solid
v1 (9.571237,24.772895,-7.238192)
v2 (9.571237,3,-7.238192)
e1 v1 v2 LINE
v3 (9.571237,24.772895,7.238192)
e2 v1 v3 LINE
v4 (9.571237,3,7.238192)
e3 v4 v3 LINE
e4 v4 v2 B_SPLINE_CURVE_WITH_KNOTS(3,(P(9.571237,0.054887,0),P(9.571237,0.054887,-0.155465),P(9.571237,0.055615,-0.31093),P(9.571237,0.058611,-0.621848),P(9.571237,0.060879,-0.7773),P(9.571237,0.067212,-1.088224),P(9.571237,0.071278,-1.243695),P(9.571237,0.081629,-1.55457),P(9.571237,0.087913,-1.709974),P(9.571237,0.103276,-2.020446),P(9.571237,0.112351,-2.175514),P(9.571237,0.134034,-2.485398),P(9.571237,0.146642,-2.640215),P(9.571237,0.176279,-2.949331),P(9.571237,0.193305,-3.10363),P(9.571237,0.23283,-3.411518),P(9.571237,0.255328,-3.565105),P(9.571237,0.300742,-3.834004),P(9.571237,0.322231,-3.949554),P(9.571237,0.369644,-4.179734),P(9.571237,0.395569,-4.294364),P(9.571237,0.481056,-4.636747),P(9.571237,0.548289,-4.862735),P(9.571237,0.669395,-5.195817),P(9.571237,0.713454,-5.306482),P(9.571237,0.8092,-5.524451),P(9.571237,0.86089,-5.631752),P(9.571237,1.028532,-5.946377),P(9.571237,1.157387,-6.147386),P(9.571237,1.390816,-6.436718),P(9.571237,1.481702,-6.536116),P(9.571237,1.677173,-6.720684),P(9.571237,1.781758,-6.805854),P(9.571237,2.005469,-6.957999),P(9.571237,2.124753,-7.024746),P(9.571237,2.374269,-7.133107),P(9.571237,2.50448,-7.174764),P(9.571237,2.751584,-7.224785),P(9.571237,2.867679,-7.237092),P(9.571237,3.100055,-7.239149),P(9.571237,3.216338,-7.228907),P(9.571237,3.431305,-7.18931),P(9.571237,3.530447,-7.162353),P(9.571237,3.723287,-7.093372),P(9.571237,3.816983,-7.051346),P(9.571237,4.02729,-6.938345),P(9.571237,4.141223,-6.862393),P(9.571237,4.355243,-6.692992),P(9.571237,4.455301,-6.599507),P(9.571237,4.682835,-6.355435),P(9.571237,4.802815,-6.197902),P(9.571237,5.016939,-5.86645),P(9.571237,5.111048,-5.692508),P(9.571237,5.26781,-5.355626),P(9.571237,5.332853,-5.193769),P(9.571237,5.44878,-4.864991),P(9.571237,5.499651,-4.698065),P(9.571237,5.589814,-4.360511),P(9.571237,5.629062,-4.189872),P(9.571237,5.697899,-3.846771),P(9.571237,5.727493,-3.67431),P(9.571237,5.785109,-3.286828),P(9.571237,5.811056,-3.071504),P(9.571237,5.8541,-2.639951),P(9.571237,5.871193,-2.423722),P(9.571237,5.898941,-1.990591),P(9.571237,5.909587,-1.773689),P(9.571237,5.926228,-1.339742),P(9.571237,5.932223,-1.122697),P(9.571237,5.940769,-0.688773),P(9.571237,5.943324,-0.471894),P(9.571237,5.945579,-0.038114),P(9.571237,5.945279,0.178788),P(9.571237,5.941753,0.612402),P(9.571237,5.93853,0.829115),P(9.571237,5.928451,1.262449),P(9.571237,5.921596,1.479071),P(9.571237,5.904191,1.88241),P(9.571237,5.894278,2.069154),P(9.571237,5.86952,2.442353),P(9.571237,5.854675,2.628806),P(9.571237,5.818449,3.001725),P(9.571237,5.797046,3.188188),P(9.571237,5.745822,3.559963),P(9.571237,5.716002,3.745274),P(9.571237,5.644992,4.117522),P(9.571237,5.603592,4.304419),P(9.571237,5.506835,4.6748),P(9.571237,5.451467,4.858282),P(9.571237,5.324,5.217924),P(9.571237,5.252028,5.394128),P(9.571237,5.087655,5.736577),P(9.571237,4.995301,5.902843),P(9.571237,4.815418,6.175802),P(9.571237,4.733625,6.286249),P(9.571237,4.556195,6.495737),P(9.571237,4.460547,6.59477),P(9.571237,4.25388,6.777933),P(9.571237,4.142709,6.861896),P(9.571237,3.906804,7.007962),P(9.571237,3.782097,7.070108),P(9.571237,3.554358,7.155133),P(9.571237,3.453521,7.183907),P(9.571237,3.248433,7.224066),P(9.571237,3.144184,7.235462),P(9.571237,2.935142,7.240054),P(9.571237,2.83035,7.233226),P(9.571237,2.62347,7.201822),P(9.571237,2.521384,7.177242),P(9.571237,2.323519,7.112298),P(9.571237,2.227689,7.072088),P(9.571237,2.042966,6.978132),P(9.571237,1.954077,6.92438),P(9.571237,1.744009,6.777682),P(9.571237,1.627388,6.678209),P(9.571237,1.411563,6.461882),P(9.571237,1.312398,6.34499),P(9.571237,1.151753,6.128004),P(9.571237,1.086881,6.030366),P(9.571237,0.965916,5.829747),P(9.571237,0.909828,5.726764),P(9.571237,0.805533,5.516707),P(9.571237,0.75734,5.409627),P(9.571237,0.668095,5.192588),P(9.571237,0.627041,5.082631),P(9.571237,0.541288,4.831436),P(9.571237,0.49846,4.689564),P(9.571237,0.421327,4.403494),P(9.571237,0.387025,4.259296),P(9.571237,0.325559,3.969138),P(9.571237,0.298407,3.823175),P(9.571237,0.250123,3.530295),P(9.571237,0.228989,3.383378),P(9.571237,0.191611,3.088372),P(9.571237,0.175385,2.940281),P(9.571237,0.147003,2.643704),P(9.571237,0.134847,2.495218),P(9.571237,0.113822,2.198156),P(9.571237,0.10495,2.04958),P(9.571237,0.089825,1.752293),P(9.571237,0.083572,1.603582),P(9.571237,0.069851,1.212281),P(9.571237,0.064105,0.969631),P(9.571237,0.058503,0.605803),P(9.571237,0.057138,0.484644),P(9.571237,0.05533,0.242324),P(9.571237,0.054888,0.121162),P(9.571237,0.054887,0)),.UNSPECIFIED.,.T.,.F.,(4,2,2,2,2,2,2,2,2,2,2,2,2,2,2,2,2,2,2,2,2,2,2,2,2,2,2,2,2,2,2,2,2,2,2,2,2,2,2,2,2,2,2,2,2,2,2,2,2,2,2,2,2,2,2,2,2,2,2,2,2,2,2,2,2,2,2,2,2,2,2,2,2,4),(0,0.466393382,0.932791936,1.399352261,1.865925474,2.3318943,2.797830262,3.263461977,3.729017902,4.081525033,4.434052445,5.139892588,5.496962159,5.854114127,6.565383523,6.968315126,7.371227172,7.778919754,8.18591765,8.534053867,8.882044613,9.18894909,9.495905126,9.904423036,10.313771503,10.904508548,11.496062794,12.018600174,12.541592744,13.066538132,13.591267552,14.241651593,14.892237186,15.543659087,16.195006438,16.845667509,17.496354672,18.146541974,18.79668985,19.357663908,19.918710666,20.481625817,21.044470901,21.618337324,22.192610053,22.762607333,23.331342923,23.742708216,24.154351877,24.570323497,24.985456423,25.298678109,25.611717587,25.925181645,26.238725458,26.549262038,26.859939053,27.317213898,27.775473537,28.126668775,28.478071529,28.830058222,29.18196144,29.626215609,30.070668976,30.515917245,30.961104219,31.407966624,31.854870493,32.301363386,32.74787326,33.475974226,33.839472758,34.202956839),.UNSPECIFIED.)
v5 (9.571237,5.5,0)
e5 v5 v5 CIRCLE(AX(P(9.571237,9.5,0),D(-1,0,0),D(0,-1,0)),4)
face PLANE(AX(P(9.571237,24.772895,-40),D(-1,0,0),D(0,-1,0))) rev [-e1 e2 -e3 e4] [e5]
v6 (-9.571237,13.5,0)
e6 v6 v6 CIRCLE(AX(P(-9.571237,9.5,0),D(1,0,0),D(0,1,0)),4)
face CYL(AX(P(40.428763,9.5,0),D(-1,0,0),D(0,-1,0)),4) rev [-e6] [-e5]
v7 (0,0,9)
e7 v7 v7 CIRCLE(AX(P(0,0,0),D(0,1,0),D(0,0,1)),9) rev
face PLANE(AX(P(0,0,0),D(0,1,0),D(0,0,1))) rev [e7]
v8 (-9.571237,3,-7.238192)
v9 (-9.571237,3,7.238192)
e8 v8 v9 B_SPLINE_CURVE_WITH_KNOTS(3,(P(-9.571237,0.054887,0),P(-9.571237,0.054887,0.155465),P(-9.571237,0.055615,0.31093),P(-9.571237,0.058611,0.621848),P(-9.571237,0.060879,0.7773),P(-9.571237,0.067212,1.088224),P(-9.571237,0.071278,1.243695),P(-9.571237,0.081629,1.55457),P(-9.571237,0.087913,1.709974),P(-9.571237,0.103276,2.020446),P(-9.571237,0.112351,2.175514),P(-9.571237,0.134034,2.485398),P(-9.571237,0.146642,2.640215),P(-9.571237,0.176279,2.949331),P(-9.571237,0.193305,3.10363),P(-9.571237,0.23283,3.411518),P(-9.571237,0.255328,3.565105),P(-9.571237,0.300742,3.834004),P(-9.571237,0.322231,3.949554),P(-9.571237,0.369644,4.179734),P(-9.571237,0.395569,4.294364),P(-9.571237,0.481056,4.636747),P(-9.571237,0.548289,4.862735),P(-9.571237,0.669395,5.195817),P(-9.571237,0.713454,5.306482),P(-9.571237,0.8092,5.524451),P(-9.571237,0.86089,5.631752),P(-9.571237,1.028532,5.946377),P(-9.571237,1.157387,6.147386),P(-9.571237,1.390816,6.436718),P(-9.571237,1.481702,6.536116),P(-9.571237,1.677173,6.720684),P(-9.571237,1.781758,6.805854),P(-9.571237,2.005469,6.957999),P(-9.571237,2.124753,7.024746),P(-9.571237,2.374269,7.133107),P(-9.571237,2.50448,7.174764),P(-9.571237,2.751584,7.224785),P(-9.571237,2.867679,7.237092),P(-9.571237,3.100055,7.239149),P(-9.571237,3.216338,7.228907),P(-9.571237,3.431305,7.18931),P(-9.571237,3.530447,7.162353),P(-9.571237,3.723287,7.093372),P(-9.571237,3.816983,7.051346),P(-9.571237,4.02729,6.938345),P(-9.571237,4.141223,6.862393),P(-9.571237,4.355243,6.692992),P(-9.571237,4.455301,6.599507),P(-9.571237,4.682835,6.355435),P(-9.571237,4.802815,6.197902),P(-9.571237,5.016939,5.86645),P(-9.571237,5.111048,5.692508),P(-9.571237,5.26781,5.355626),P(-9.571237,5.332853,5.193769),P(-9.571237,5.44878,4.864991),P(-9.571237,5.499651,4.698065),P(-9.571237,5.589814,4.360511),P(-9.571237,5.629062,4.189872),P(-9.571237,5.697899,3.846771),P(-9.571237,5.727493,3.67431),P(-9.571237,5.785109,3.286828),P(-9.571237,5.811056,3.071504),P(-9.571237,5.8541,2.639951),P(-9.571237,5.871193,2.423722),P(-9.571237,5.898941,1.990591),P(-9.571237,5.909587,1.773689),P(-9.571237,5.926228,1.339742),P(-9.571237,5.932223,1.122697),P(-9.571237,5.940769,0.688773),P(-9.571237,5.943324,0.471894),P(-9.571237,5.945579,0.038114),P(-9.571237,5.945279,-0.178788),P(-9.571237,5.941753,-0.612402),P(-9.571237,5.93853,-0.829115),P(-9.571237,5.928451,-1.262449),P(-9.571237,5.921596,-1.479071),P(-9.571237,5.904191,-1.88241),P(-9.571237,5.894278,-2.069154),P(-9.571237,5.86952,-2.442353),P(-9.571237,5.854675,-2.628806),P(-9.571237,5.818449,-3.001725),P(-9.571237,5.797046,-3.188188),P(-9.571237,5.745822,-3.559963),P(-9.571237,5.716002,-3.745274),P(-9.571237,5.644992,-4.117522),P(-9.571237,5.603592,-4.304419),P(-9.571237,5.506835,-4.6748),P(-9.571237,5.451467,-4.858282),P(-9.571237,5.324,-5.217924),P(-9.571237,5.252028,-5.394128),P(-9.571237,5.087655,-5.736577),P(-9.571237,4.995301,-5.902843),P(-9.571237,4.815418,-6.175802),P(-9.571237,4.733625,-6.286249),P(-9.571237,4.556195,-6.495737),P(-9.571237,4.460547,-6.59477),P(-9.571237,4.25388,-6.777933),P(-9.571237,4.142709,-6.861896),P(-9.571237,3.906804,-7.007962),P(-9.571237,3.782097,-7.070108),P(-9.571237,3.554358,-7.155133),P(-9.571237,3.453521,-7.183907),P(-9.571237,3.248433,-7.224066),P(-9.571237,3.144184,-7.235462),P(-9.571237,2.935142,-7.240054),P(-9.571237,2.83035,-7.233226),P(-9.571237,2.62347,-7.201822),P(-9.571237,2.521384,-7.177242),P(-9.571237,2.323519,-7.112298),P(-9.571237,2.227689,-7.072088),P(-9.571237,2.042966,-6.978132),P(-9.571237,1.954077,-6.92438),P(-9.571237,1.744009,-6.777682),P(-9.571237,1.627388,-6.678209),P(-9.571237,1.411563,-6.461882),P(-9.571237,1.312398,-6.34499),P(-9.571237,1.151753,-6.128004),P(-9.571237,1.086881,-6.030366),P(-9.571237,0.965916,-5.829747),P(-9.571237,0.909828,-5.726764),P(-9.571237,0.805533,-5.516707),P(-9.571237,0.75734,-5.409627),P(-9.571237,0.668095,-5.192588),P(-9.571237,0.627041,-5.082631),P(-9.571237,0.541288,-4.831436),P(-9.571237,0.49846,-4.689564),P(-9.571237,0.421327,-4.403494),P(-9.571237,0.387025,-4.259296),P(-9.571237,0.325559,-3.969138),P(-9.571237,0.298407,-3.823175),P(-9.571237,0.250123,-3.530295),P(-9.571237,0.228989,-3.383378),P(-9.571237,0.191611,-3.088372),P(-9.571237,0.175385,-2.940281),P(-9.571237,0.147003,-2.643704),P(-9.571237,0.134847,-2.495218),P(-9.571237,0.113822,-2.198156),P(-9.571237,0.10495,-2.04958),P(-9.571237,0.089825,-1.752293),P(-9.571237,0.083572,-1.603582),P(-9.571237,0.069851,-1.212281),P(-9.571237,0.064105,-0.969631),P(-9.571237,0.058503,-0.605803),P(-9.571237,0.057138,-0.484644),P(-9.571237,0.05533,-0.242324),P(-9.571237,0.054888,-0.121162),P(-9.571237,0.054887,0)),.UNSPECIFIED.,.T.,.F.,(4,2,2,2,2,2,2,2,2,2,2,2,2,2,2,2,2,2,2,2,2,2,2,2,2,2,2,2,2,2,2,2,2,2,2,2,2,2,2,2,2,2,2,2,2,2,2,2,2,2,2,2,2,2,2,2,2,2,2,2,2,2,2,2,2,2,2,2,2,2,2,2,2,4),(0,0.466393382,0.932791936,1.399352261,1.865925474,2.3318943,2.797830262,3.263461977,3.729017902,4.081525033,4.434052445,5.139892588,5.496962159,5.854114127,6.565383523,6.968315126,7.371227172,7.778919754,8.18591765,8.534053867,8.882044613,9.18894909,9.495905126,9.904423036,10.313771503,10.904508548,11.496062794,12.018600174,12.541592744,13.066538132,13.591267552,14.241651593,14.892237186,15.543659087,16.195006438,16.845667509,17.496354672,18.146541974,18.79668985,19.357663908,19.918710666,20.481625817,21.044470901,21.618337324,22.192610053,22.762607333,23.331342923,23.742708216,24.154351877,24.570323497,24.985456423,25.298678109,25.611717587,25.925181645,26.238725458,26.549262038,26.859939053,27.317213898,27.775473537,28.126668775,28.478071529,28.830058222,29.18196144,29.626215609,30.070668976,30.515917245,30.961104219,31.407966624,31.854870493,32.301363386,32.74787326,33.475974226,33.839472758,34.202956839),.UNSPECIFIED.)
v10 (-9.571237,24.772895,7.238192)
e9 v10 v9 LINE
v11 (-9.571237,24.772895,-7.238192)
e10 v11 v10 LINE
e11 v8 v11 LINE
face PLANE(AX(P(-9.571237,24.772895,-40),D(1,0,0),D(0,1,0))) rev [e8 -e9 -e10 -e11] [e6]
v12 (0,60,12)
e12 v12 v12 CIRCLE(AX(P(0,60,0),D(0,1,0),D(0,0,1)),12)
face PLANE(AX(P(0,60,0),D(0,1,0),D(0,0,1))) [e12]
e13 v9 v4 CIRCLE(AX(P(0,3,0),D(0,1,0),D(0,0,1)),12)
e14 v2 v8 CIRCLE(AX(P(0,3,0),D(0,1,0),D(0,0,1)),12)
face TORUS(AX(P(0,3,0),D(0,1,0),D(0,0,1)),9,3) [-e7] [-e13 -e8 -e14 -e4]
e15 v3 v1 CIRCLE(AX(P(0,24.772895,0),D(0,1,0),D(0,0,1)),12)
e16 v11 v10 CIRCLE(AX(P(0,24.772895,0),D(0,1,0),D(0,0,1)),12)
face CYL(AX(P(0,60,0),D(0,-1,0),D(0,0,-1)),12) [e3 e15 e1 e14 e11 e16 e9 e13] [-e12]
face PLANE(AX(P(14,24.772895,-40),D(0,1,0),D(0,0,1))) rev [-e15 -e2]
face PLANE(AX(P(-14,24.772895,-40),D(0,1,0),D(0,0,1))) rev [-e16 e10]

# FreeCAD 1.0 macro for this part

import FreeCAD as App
import Part
import Sketcher

V = App.Vector


def edges_at(feature, points):
    """Names of the edges that pass closest to the given points."""
    edges = feature.Shape.Edges
    near = lambda p: min(range(len(edges)), key=lambda i: edges[i].distToShape(Part.Vertex(*p))[0])
    return sorted({f"Edge{near(p) + 1}" for p in points})


def add_polygon(sketch, points):
    """Adds a closed chain of lines whose ends are joined by coincident constraints."""
    first, n = sketch.GeometryCount, len(points)
    for a, b in zip(points, points[1:] + points[:1]):
        sketch.addGeometry(Part.LineSegment(App.Vector(*a, 0), App.Vector(*b, 0)), False)
    for i in range(n):
        sketch.addConstraint(Sketcher.Constraint("Coincident", first + i, 2, first + (i + 1) % n, 1))

doc = App.newDocument("Part")
body = doc.addObject("PartDesign::Body", "Body")

# Sketch on XZ plane
sketch1 = body.newObject("Sketcher::SketchObject", "Sketch")
sketch1.AttachmentSupport = (doc.getObject("XZ_Plane"), [""])
sketch1.MapMode = "FlatFace"
sketch1.addGeometry(Part.Circle(V(0, 0, 0), V(0, 0, 1), 12), False)
sketch1.addConstraint([
    Sketcher.Constraint("Coincident", 0, 3, -1, 1),
    Sketcher.Constraint("Diameter", 0, 24.0),
])
pad1 = body.newObject("PartDesign::Pad", "Pad")
pad1.Profile = sketch1
pad1.Length = 60
pad1.Reversed = True
doc.recompute()

fillet = body.newObject("PartDesign::Fillet", "Fillet")
fillet.Base = (pad1, edges_at(pad1, [(0, 0, -12)]))
fillet.Radius = 3

# Sketch on XY plane
sketch2 = body.newObject("Sketcher::SketchObject", "Sketch001")
sketch2.AttachmentSupport = (doc.getObject("XY_Plane"), [""])
sketch2.MapMode = "FlatFace"
add_polygon(sketch2, [(-14, 24.8), (-14, -5.1), (-9.6, -5.1), (-9.6, 24.8)])  # lines 0-3
add_polygon(sketch2, [(9.6, 24.8), (9.6, -5.1), (14, -5.1), (14, 24.8)])  # lines 4-7
sketch2.addConstraint([
    Sketcher.Constraint("Vertical", 0),
    Sketcher.Constraint("Horizontal", 1),
    Sketcher.Constraint("Vertical", 2),
    Sketcher.Constraint("Horizontal", 3),
    Sketcher.Constraint("Vertical", 4),
    Sketcher.Constraint("Horizontal", 5),
    Sketcher.Constraint("Vertical", 6),
    Sketcher.Constraint("Horizontal", 7),
    Sketcher.Constraint("Symmetric", 1, 2, 4, 2, -2),
    Sketcher.Constraint("Symmetric", 3, 2, 6, 2, -2),
    Sketcher.Constraint("DistanceX", 0, 2, -1, 1, 14.0),
    Sketcher.Constraint("DistanceY", 0, 2, 0, 1, 29.827901),
    Sketcher.Constraint("DistanceX", 1, 1, 1, 2, 4.428763),
    Sketcher.Constraint("DistanceY", 0, 2, -1, 1, 5.055005),
])
pocket1 = body.newObject("PartDesign::Pocket", "Pocket")
pocket1.Profile = sketch2
pocket1.Length = 80
pocket1.Midplane = True

# Sketch on YZ plane
sketch3 = body.newObject("Sketcher::SketchObject", "Sketch002")
sketch3.AttachmentSupport = (doc.getObject("YZ_Plane"), [""])
sketch3.MapMode = "FlatFace"
sketch3.AttachmentOffset = App.Placement(V(0, 0, -9.571237), App.Rotation())
sketch3.addGeometry(Part.Circle(V(9.5, 0, 0), V(0, 0, 1), 4), False)
sketch3.addConstraint([
    Sketcher.Constraint("PointOnObject", 0, 3, -1),
    Sketcher.Constraint("Diameter", 0, 8.0),
    Sketcher.Constraint("DistanceX", -1, 1, 0, 3, 9.5),
])
pocket2 = body.newObject("PartDesign::Pocket", "Pocket001")
pocket2.Profile = sketch3
pocket2.Length = 100
pocket2.Midplane = True

doc.recompute()
